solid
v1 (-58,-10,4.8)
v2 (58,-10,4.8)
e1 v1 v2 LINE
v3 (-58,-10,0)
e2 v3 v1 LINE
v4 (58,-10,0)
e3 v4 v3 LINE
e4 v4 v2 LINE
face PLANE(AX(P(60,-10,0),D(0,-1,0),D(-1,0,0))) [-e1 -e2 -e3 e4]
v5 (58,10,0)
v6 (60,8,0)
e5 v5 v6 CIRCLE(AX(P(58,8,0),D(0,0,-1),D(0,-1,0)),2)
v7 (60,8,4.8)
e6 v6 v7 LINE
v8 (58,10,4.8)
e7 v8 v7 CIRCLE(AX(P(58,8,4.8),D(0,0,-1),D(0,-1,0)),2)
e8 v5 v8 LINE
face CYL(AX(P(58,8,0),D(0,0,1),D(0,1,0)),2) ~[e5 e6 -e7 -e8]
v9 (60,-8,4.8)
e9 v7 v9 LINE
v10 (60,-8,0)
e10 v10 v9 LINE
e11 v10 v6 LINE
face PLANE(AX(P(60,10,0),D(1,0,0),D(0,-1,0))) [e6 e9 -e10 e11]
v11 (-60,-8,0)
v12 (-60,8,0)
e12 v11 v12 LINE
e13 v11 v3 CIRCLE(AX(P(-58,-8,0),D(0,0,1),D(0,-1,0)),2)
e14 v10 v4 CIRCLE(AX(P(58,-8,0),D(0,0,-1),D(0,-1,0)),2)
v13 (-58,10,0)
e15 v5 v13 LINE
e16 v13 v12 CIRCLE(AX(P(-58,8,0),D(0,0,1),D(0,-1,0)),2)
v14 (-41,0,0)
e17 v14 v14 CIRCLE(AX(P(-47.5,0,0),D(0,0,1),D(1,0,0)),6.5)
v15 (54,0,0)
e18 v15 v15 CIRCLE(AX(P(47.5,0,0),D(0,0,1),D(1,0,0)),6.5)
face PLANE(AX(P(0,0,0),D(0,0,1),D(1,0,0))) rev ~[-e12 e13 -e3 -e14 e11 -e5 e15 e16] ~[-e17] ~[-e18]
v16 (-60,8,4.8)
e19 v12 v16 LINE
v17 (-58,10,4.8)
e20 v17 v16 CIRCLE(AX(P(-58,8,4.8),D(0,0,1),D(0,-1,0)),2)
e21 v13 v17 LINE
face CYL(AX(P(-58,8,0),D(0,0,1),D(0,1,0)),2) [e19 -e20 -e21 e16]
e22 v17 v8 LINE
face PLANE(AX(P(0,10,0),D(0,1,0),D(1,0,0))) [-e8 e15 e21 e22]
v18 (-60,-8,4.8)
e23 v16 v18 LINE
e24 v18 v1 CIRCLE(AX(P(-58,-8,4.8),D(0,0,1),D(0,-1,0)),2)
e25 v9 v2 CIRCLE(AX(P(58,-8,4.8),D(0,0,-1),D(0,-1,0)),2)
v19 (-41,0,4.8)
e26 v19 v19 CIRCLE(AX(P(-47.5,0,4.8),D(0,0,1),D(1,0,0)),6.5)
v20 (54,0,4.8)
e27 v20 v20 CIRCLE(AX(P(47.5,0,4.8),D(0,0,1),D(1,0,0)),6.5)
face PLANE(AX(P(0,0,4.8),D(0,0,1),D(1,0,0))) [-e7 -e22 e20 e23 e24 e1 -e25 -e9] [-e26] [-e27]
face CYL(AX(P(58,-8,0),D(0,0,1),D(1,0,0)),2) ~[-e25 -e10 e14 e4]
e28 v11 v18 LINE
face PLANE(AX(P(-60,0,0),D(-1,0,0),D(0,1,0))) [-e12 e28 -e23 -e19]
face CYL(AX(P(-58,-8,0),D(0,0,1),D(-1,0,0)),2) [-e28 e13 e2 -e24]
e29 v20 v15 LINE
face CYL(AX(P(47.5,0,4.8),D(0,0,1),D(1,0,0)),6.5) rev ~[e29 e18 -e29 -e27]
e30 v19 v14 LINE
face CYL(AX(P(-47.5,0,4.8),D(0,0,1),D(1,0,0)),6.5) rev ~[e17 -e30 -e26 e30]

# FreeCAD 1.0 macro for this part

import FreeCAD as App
import Part
import Sketcher
from FreeCAD import Vector


def edges_at(feature, points):
    """Names of the edges that pass closest to the given points."""
    edges = feature.Shape.Edges
    near = lambda p: min(range(len(edges)), key=lambda i: edges[i].distToShape(Part.Vertex(*p))[0])
    return sorted({f"Edge{near(p) + 1}" for p in points})


def add_polygon(sketch, points):
    """Adds a closed chain of lines whose ends are joined by coincident constraints."""
    first, n = sketch.GeometryCount, len(points)
    for a, b in zip(points, points[1:] + points[:1]):
        sketch.addGeometry(Part.LineSegment(App.Vector(*a, 0), App.Vector(*b, 0)), False)
    for i in range(n):
        sketch.addConstraint(Sketcher.Constraint("Coincident", first + i, 2, first + (i + 1) % n, 1))

doc = App.newDocument("Part")
body = doc.addObject("PartDesign::Body", "Body")

sketch1 = body.newObject("Sketcher::SketchObject", "Sketch")
sketch1.AttachmentSupport = (doc.getObject("XY_Plane"), [""])
sketch1.MapMode = "FlatFace"
add_polygon(sketch1, [(60, 10), (-60, 10), (-60, -10), (60, -10)])
sketch1.addConstraint([
    Sketcher.Constraint("Horizontal", 0),
    Sketcher.Constraint("Vertical", 1),
    Sketcher.Constraint("Horizontal", 2),
    Sketcher.Constraint("Vertical", 3),
    Sketcher.Constraint("Symmetric", 0, 2, 2, 2, -1, 1),
    Sketcher.Constraint("DistanceX", 0, 2, 0, 1, 120.0),
    Sketcher.Constraint("DistanceY", 1, 2, 1, 1, 20.0),
])
pad1 = body.newObject("PartDesign::Pad", "Pad")
pad1.Profile = sketch1
pad1.Length = 4.8

sketch2 = body.newObject("Sketcher::SketchObject", "Sketch001")
sketch2.AttachmentSupport = (doc.getObject("XY_Plane"), [""])
sketch2.MapMode = "FlatFace"
sketch2.AttachmentOffset = App.Placement(Vector(0, 0, 4.8), App.Rotation())
sketch2.addGeometry([
    Part.Circle(Vector(-47.5, 0, 0), Vector(0, 0, 1), 6.5),
    Part.Circle(Vector(47.5, 0, 0), Vector(0, 0, 1), 6.5),
], False)
sketch2.addConstraint([
    Sketcher.Constraint("Equal", 0, 1),
    Sketcher.Constraint("Symmetric", 0, 3, 1, 3, -1, 1),
    Sketcher.Constraint("PointOnObject", 0, 3, -1),
    Sketcher.Constraint("Diameter", 0, 13.0),
    Sketcher.Constraint("DistanceX", 0, 3, 1, 3, 95.0),
])
pocket1 = body.newObject("PartDesign::Pocket", "Pocket")
pocket1.Profile = sketch2
pocket1.Type = "ThroughAll"
doc.recompute()

fillet = body.newObject("PartDesign::Fillet", "Fillet")
fillet.Base = (pocket1, edges_at(pocket1, [
    (-60, 10, 2.4),
    (-60, -10, 2.4),
    (60, 10, 2.4),
    (60, -10, 2.4),
]))
fillet.Radius = 2

doc.recompute()
